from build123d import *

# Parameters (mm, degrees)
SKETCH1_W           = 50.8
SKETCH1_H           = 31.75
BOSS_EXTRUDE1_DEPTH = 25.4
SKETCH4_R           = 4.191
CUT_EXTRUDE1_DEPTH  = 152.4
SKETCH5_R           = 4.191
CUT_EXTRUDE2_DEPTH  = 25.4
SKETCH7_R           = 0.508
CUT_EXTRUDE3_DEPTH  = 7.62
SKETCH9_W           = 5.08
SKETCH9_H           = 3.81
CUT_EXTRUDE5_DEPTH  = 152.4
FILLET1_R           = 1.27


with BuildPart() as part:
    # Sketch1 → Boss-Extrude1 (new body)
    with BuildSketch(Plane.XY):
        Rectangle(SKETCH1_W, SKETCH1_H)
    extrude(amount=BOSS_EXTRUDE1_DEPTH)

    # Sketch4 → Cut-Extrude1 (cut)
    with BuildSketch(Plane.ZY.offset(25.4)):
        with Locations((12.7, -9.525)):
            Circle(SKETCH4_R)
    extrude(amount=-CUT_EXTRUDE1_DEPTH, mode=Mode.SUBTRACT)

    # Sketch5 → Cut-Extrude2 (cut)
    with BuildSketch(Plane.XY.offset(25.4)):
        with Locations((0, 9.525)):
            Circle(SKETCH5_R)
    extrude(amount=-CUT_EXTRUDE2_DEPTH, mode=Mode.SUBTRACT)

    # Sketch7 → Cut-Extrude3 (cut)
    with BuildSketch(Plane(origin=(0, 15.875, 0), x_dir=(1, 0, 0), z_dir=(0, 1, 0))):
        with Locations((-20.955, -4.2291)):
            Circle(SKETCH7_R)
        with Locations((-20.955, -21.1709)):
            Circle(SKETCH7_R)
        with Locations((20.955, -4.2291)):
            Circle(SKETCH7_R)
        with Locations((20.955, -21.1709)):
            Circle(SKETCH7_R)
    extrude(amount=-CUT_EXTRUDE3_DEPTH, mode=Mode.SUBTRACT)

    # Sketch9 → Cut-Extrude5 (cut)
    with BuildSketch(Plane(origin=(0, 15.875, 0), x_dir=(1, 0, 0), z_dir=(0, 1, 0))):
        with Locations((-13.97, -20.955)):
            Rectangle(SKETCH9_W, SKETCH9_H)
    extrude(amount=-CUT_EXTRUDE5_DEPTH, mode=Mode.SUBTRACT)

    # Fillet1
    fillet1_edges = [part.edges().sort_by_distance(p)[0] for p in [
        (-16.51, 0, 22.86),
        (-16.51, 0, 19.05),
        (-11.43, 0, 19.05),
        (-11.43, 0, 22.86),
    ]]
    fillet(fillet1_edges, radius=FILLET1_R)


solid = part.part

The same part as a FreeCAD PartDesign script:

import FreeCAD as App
import Part
import Sketcher
Q = App.Units.Quantity


def edges_at(feature, points):
    """Names of the edges that pass closest to the given points."""
    edges = feature.Shape.Edges
    near = lambda p: min(range(len(edges)), key=lambda i: edges[i].distToShape(Part.Vertex(*p))[0])
    return sorted({f"Edge{near(p) + 1}" for p in points})

doc = App.newDocument("Part")
params = doc.addObject("Spreadsheet::Sheet", "Params")
for row, (alias, value) in enumerate([
    ("sketch1_width", "2 in"),
    ("sketch1_height", "1.25 in"),
    ("pad1_length", "1 in"),
    ("sketch2_diameter", "0.33 in"),
    ("pocket1_length", "6 in"),
    ("sketch3_diameter", "0.33 in"),
    ("pocket2_length", "1 in"),
    ("sketch4_diameter", "0.04 in"),
    ("pocket3_length", "0.3 in"),
    ("sketch5_width", "0.2 in"),
    ("sketch5_height", "0.15 in"),
    ("pocket4_length", "6 in"),
    ("fillet_radius", "0.05 in"),
], start=1):
    params.set(f"A{row}", alias)
    params.set(f"B{row}", "=" + value)
    params.setAlias(f"B{row}", alias)

body = doc.addObject("PartDesign::Body", "Body")

# Sketch on XY plane
sketch1 = doc.addObject("Sketcher::SketchObject", "Sketch")
body.addObject(sketch1)
sketch1.AttachmentSupport = (doc.XY_Plane, [""])
sketch1.MapMode = "FlatFace"
sketch1.addGeometry([
    Part.LineSegment(App.Vector(-25.4, 15.875, 0), App.Vector(-25.4, -15.875, 0)),
    Part.LineSegment(App.Vector(-25.4, -15.875, 0), App.Vector(25.4, -15.875, 0)),
    Part.LineSegment(App.Vector(25.4, -15.875, 0), App.Vector(25.4, 15.875, 0)),
    Part.LineSegment(App.Vector(25.4, 15.875, 0), App.Vector(-25.4, 15.875, 0)),
], False)
sketch1.addConstraint([
    Sketcher.Constraint("Coincident", 0, 2, 1, 1),
    Sketcher.Constraint("Coincident", 1, 2, 2, 1),
    Sketcher.Constraint("Coincident", 2, 2, 3, 1),
    Sketcher.Constraint("Coincident", 3, 2, 0, 1),
    Sketcher.Constraint("Vertical", 0),
    Sketcher.Constraint("Horizontal", 1),
    Sketcher.Constraint("Vertical", 2),
    Sketcher.Constraint("Horizontal", 3),
    Sketcher.Constraint("Symmetric", 0, 2, 2, 2, -1, 1),
    Sketcher.Constraint("DistanceX", 1, 1, 1, 2, Q("2 in")),
    Sketcher.Constraint("DistanceY", 0, 2, 0, 1, Q("1.25 in")),
])
sketch1.setExpression("Constraints[9]", "Params.sketch1_width")
sketch1.setExpression("Constraints[10]", "Params.sketch1_height")
pad1 = doc.addObject("PartDesign::Pad", "Pad")
body.addObject(pad1)
pad1.Profile = sketch1
pad1.setExpression("Length", "Params.pad1_length")

# Sketch on YZ plane
sketch2 = doc.addObject("Sketcher::SketchObject", "Sketch001")
body.addObject(sketch2)
sketch2.AttachmentSupport = (doc.YZ_Plane, [""])
sketch2.MapMode = "FlatFace"
sketch2.AttachmentOffset = App.Placement(App.Vector(0, 0, -1 * 25.4), App.Rotation())
sketch2.addGeometry(Part.Circle(App.Vector(-9.525, 12.7, 0), App.Vector(0, 0, 1), 4.191), False)
sketch2.addConstraint([
    Sketcher.Constraint("Diameter", 0, Q("0.33 in")),
    Sketcher.Constraint("DistanceY", -1, 1, 0, 3, Q("0.5 in")),
    Sketcher.Constraint("DistanceX", 0, 3, -1, 1, Q("0.375 in")),
])
sketch2.setExpression("Constraints[0]", "Params.sketch2_diameter")
pocket1 = doc.addObject("PartDesign::Pocket", "Pocket")
body.addObject(pocket1)
pocket1.Profile = sketch2
pocket1.setExpression("Length", "Params.pocket1_length")
pocket1.Reversed = True

# Sketch on XY plane
sketch3 = doc.addObject("Sketcher::SketchObject", "Sketch002")
body.addObject(sketch3)
sketch3.AttachmentSupport = (doc.XY_Plane, [""])
sketch3.MapMode = "FlatFace"
sketch3.AttachmentOffset = App.Placement(App.Vector(0, 0, 1 * 25.4), App.Rotation())
sketch3.addGeometry(Part.Circle(App.Vector(0, 9.525, 0), App.Vector(0, 0, 1), 4.191), False)
sketch3.addConstraint([
    Sketcher.Constraint("PointOnObject", 0, 3, -2),
    Sketcher.Constraint("Diameter", 0, Q("0.33 in")),
    Sketcher.Constraint("DistanceY", -1, 1, 0, 3, Q("0.375 in")),
])
sketch3.setExpression("Constraints[1]", "Params.sketch3_diameter")
pocket2 = doc.addObject("PartDesign::Pocket", "Pocket001")
body.addObject(pocket2)
pocket2.Profile = sketch3
pocket2.setExpression("Length", "Params.pocket2_length")

# Sketch on XZ plane
sketch4 = doc.addObject("Sketcher::SketchObject", "Sketch003")
body.addObject(sketch4)
sketch4.AttachmentSupport = (doc.XZ_Plane, [""])
sketch4.MapMode = "FlatFace"
sketch4.AttachmentOffset = App.Placement(App.Vector(0, 0, -0.625 * 25.4), App.Rotation())
sketch4.addGeometry([
    Part.Circle(App.Vector(-20.955, 4.2291, 0), App.Vector(0, 0, 1), 0.508),
    Part.Circle(App.Vector(-20.955, 21.1709, 0), App.Vector(0, 0, 1), 0.508),
    Part.Circle(App.Vector(20.955, 4.2291, 0), App.Vector(0, 0, 1), 0.508),
    Part.Circle(App.Vector(20.955, 21.1709, 0), App.Vector(0, 0, 1), 0.508),
], False)
sketch4.addConstraint([
    Sketcher.Constraint("Equal", 0, 1),
    Sketcher.Constraint("Equal", 1, 2),
    Sketcher.Constraint("Equal", 2, 3),
    Sketcher.Constraint("Symmetric", 0, 3, 2, 3, -2),
    Sketcher.Constraint("Symmetric", 1, 3, 3, 3, -2),
    Sketcher.Constraint("Vertical", 0, 3, 1, 3),
    Sketcher.Constraint("Diameter", 0, Q("0.04 in")),
    Sketcher.Constraint("DistanceX", 0, 3, 2, 3, Q("1.65 in")),
    Sketcher.Constraint("DistanceY", 0, 3, 1, 3, Q("0.667 in")),
    Sketcher.Constraint("DistanceY", -1, 1, 0, 3, Q("0.1665 in")),
])
sketch4.setExpression("Constraints[6]", "Params.sketch4_diameter")
pocket3 = doc.addObject("PartDesign::Pocket", "Pocket002")
body.addObject(pocket3)
pocket3.Profile = sketch4
pocket3.setExpression("Length", "Params.pocket3_length")
pocket3.Reversed = True

# Sketch on XZ plane
sketch5 = doc.addObject("Sketcher::SketchObject", "Sketch004")
body.addObject(sketch5)
sketch5.AttachmentSupport = (doc.XZ_Plane, [""])
sketch5.MapMode = "FlatFace"
sketch5.AttachmentOffset = App.Placement(App.Vector(0, 0, -0.625 * 25.4), App.Rotation())
sketch5.addGeometry([
    Part.LineSegment(App.Vector(-16.51, 19.05, 0), App.Vector(-16.51, 22.86, 0)),
    Part.LineSegment(App.Vector(-16.51, 22.86, 0), App.Vector(-11.43, 22.86, 0)),
    Part.LineSegment(App.Vector(-11.43, 22.86, 0), App.Vector(-11.43, 19.05, 0)),
    Part.LineSegment(App.Vector(-11.43, 19.05, 0), App.Vector(-16.51, 19.05, 0)),
], False)
sketch5.addConstraint([
    Sketcher.Constraint("Coincident", 0, 2, 1, 1),
    Sketcher.Constraint("Coincident", 1, 2, 2, 1),
    Sketcher.Constraint("Coincident", 2, 2, 3, 1),
    Sketcher.Constraint("Coincident", 3, 2, 0, 1),
    Sketcher.Constraint("Vertical", 0),
    Sketcher.Constraint("Horizontal", 1),
    Sketcher.Constraint("Vertical", 2),
    Sketcher.Constraint("Horizontal", 3),
    Sketcher.Constraint("DistanceX", 1, 1, 1, 2, Q("0.2 in")),
    Sketcher.Constraint("DistanceY", 0, 1, 0, 2, Q("0.15 in")),
    Sketcher.Constraint("DistanceY", -1, 1, 0, 2, Q("0.9 in")),
    Sketcher.Constraint("DistanceX", 0, 2, -1, 1, Q("0.65 in")),
])
sketch5.setExpression("Constraints[8]", "Params.sketch5_width")
sketch5.setExpression("Constraints[9]", "Params.sketch5_height")
pocket4 = doc.addObject("PartDesign::Pocket", "Pocket003")
body.addObject(pocket4)
pocket4.Profile = sketch5
pocket4.setExpression("Length", "Params.pocket4_length")
pocket4.Reversed = True
doc.recompute()

fillet = doc.addObject("PartDesign::Fillet", "Fillet")
body.addObject(fillet)
fillet.Base = (pocket4, edges_at(pocket4, [
    (-16.51, 0, 22.86),
    (-16.51, 0, 19.05),
    (-11.43, 0, 19.05),
    (-11.43, 0, 22.86),
]))
fillet.setExpression("Radius", "Params.fillet_radius")

doc.recompute()
